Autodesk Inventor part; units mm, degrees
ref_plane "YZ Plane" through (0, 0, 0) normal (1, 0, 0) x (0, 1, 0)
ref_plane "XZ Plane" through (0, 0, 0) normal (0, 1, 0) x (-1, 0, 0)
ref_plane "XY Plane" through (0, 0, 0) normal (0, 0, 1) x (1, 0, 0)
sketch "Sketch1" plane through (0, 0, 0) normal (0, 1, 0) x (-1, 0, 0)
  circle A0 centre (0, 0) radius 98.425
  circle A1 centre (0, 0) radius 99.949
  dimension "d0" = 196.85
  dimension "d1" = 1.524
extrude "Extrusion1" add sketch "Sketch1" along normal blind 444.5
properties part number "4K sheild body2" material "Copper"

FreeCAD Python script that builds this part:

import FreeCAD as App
import Part
import Sketcher

V = App.Vector
Q = App.Units.Quantity

doc = App.newDocument("Part")
body = doc.addObject("PartDesign::Body", "Body")

sketch1 = body.newObject("Sketcher::SketchObject", "Sketch")
sketch1.AttachmentSupport = (doc.getObject("XZ_Plane"), [""])
sketch1.MapMode = "FlatFace"
sketch1.addGeometry(Part.Circle(V(0, 0, 0), V(0, 0, 1), 99.949), False)
sketch1.addGeometry(Part.Circle(V(0, 0, 0), V(0, 0, 1), 98.425), False)
sketch1.addConstraint(Sketcher.Constraint("Coincident", 0, 3, -1, 1))
sketch1.addConstraint(Sketcher.Constraint("Coincident", 1, 3, -1, 1))
sketch1.addConstraint(Sketcher.Constraint("Diameter", 1, Q("7.75 in")))
sketch1.addConstraint(Sketcher.Constraint("Diameter", 0, Q("7.87 in")))
pad1 = body.newObject("PartDesign::Pad", "Pad")
pad1.Profile = sketch1
pad1.Length = Q("17.5 in")
pad1.Reversed = True

doc.recompute()
